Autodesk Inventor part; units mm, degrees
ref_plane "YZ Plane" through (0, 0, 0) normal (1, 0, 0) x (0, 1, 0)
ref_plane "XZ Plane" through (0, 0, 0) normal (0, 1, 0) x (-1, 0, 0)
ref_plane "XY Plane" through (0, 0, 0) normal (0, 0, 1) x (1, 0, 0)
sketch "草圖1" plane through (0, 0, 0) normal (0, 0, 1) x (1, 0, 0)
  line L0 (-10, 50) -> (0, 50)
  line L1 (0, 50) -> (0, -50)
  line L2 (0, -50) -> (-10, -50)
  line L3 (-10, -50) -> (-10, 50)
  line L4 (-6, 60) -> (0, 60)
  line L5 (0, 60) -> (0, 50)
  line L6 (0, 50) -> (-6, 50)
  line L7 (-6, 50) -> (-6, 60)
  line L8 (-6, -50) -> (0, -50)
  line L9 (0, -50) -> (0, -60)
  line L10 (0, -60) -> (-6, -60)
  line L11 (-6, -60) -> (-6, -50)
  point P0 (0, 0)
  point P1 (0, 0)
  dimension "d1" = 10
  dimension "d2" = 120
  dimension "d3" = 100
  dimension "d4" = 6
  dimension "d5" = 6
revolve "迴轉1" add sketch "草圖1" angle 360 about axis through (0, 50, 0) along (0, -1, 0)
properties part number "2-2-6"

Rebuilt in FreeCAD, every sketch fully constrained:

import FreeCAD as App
import Part
import Sketcher


def add_polygon(sketch, points):
    """Adds a closed chain of lines whose ends are joined by coincident constraints."""
    first, n = sketch.GeometryCount, len(points)
    for a, b in zip(points, points[1:] + points[:1]):
        sketch.addGeometry(Part.LineSegment(App.Vector(*a, 0), App.Vector(*b, 0)), False)
    for i in range(n):
        sketch.addConstraint(Sketcher.Constraint("Coincident", first + i, 2, first + (i + 1) % n, 1))

doc = App.newDocument("Part")
body = doc.addObject("PartDesign::Body", "Body")

# Sketch on XY plane
sketch1 = body.newObject("Sketcher::SketchObject", "Sketch")
sketch1.AttachmentSupport = (doc.getObject("XY_Plane"), [""])
sketch1.MapMode = "FlatFace"
add_polygon(sketch1, [(-6, 50), (-10, 50), (-10, -50), (-6, -50), (-6, -60), (0, -60), (0, 60), (-6, 60)])  # lines 0-7
sketch1.addConstraint(Sketcher.Constraint("Horizontal", 0))
sketch1.addConstraint(Sketcher.Constraint("Vertical", 1))
sketch1.addConstraint(Sketcher.Constraint("Horizontal", 2))
sketch1.addConstraint(Sketcher.Constraint("Vertical", 3))
sketch1.addConstraint(Sketcher.Constraint("Horizontal", 4))
sketch1.addConstraint(Sketcher.Constraint("Vertical", 5))
sketch1.addConstraint(Sketcher.Constraint("Horizontal", 6))
sketch1.addConstraint(Sketcher.Constraint("Vertical", 7))
sketch1.addConstraint(Sketcher.Constraint("Symmetric", 4, 2, 5, 2, -1, 1))
sketch1.addConstraint(Sketcher.Constraint("Symmetric", 2, 2, 7, 2, -1))
sketch1.addConstraint(Sketcher.Constraint("DistanceX", 4, 1, 4, 2, 6.0))
sketch1.addConstraint(Sketcher.Constraint("DistanceY", 1, 2, 1, 1, 100.0))
sketch1.addConstraint(Sketcher.Constraint("DistanceY", 3, 2, 3, 1, 10.0))
sketch1.addConstraint(Sketcher.Constraint("DistanceX", 0, 2, -1, 1, 10.0))
revolution = body.newObject("PartDesign::Revolution", "Revolution")
revolution.Profile = sketch1
revolution.ReferenceAxis = (sketch1, ["V_Axis"])
revolution.Angle = 360

doc.recompute()
